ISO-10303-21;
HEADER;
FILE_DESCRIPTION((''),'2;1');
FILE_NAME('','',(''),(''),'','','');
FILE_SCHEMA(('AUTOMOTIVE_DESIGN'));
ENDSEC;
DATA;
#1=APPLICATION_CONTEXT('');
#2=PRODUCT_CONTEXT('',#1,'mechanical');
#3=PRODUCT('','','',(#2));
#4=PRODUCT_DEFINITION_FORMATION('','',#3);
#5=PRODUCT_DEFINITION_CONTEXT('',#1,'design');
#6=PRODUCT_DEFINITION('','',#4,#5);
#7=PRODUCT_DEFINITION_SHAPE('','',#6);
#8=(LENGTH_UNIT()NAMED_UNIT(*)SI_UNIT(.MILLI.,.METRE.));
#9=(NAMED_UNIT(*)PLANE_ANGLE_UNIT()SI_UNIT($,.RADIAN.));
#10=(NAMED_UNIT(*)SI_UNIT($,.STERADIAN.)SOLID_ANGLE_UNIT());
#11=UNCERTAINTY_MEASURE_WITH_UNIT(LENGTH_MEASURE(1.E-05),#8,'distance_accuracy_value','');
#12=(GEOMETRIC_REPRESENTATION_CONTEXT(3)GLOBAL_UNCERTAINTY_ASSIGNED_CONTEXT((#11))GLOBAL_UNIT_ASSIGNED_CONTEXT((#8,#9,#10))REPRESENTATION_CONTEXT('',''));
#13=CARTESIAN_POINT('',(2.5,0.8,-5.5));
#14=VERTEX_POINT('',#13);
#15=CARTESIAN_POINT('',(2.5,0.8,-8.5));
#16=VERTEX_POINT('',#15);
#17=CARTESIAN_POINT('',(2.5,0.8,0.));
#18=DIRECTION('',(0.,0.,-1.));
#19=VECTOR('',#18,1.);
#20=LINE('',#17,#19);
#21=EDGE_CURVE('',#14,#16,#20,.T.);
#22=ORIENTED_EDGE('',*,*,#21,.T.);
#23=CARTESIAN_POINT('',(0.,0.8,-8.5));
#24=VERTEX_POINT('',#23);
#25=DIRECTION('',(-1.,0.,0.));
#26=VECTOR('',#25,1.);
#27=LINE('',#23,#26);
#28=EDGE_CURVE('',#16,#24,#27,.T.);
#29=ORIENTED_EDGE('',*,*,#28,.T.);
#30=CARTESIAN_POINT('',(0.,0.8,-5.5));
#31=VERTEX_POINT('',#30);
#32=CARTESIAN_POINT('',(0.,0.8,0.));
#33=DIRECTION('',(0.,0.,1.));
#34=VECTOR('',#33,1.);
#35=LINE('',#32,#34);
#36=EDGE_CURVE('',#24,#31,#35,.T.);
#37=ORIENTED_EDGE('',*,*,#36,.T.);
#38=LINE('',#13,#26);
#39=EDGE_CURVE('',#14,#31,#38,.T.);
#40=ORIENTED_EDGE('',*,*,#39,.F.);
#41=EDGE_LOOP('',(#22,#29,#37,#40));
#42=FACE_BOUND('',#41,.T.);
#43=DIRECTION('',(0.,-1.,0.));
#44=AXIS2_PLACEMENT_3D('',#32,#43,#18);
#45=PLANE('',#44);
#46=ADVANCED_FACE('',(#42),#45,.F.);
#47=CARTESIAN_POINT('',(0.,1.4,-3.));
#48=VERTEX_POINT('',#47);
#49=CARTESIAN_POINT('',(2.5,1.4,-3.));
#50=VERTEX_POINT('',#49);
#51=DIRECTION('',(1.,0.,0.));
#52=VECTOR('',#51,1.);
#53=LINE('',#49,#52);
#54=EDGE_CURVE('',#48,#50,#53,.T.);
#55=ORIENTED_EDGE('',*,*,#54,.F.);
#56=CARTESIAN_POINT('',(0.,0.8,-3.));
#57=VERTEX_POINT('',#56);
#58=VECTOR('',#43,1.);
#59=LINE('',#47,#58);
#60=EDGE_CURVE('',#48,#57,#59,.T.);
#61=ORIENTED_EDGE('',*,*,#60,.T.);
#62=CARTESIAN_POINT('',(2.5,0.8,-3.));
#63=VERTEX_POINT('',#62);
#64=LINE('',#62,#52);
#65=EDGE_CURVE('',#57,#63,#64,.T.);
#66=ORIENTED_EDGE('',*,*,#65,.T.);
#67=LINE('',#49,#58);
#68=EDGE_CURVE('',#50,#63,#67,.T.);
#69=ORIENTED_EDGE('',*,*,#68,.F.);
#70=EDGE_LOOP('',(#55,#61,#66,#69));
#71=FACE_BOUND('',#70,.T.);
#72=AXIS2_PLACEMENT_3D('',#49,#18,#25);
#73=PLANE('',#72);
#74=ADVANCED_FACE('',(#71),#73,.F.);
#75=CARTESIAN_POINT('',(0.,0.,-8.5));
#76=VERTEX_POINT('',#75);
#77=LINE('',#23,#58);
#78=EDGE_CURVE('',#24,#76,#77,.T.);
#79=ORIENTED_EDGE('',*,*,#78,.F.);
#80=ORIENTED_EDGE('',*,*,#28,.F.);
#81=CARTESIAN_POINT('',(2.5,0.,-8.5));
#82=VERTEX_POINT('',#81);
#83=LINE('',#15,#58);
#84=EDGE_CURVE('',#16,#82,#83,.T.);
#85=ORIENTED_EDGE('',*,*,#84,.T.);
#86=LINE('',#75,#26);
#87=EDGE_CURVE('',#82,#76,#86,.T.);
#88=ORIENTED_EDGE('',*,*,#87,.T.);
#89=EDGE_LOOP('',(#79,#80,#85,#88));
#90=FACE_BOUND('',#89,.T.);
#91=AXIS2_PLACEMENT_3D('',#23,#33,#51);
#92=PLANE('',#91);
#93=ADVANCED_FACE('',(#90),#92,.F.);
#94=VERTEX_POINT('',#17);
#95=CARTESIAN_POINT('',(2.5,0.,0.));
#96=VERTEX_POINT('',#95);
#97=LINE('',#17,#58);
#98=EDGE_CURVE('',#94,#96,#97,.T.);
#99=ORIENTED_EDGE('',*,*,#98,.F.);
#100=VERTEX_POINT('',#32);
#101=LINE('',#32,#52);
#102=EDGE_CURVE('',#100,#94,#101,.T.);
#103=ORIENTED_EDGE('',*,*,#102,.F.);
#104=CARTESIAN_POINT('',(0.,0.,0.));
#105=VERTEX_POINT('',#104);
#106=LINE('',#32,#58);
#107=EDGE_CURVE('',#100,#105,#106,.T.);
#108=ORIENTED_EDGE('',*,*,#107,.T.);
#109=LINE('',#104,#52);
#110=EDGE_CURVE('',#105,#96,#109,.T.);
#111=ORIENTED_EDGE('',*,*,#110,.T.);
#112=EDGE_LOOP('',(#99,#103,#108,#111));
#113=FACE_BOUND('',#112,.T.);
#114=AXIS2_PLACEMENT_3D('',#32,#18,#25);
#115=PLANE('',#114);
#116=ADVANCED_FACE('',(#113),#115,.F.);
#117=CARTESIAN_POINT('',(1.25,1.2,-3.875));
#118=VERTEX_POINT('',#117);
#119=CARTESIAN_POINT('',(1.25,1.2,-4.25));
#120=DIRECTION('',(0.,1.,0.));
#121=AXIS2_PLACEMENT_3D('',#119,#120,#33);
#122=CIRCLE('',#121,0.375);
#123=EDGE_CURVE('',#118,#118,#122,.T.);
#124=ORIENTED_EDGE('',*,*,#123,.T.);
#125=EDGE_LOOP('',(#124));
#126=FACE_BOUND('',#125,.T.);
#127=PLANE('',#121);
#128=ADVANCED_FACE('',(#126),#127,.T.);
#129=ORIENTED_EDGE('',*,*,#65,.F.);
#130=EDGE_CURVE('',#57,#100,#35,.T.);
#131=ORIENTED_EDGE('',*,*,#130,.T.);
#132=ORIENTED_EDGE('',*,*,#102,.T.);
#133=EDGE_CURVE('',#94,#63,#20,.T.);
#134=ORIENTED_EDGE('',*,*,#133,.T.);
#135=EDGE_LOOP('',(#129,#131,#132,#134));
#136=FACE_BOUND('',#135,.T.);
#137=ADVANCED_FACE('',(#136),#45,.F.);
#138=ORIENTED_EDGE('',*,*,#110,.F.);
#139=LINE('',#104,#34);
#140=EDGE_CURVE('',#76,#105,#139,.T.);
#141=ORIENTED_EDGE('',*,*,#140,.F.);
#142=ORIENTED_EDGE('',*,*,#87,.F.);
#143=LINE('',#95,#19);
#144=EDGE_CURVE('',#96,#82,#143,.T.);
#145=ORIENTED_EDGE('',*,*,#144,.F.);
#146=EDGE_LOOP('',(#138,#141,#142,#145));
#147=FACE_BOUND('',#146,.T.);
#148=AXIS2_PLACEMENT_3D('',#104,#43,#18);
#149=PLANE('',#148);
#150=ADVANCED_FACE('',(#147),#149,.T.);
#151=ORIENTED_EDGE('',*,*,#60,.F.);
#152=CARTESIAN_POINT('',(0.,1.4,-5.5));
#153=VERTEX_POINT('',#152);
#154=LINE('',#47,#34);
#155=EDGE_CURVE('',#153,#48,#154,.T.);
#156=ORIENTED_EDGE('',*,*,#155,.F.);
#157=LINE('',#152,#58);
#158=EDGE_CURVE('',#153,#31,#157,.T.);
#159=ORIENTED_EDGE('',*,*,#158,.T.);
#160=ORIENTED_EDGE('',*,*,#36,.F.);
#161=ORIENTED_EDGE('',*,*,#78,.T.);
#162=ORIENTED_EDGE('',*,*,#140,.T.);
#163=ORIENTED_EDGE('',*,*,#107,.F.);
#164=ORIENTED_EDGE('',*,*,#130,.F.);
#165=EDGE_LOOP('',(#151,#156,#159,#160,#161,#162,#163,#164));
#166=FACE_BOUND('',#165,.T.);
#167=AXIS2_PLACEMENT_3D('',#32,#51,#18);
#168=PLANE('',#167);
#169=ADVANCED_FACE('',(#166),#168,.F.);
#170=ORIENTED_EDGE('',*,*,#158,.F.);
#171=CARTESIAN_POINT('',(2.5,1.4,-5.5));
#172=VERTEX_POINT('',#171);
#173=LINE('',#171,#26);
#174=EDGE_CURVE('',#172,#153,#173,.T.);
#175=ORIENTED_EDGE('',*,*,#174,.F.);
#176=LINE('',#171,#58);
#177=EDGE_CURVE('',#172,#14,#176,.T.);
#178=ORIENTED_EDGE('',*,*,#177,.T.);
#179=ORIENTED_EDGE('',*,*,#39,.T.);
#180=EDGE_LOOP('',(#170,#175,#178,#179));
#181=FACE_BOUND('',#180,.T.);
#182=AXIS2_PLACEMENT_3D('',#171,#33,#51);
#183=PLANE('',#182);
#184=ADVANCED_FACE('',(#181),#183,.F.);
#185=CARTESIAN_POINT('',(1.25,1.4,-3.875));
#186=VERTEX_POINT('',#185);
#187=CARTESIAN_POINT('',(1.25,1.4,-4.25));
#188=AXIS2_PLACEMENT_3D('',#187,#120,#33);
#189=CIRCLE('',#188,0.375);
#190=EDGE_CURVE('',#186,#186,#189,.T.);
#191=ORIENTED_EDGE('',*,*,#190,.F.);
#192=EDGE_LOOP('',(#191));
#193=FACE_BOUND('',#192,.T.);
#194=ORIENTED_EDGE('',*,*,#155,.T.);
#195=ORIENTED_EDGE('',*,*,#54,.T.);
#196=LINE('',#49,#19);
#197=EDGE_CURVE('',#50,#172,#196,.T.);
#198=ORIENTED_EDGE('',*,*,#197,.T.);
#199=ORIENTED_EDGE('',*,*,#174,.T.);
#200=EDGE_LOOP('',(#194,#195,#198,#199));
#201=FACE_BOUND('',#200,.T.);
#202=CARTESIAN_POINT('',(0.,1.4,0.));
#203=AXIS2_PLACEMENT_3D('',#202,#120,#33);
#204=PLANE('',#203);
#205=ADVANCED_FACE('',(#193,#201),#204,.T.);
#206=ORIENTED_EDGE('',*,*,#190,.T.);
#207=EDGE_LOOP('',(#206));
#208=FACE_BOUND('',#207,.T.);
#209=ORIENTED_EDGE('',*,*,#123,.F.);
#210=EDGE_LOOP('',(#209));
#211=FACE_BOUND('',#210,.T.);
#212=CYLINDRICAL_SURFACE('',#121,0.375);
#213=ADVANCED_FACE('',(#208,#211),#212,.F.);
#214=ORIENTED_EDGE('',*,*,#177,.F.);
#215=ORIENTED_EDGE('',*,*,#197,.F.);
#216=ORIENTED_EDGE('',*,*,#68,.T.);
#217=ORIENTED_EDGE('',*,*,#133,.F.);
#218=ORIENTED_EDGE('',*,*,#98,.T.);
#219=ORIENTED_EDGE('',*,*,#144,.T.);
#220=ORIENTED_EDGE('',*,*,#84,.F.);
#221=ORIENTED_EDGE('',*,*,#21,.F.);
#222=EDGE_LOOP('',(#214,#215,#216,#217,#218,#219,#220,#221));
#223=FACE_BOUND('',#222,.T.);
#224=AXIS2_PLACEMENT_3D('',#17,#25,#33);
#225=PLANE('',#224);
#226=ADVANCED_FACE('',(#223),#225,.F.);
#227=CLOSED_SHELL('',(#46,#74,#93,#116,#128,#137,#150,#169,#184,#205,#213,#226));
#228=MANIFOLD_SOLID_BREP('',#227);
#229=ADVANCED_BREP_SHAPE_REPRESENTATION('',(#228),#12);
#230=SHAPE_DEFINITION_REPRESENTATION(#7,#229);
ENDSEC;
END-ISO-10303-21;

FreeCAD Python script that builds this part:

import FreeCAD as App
import Part
import Sketcher

V = App.Vector
Q = App.Units.Quantity


def add_polygon(sketch, points):
    """Adds a closed chain of lines whose ends are joined by coincident constraints."""
    first, n = sketch.GeometryCount, len(points)
    for a, b in zip(points, points[1:] + points[:1]):
        sketch.addGeometry(Part.LineSegment(App.Vector(*a, 0), App.Vector(*b, 0)), False)
    for i in range(n):
        sketch.addConstraint(Sketcher.Constraint("Coincident", first + i, 2, first + (i + 1) % n, 1))

doc = App.newDocument("Part")
body = doc.addObject("PartDesign::Body", "Body")

sketch1 = body.newObject("Sketcher::SketchObject", "Sketch")
sketch1.AttachmentSupport = (doc.getObject("XZ_Plane"), [""])
sketch1.MapMode = "FlatFace"
add_polygon(sketch1, [(0, -8.5), (0, 0), (2.5, 0), (2.5, -8.5)])
sketch1.addConstraint([
    Sketcher.Constraint("Vertical", 0),
    Sketcher.Constraint("Horizontal", 1),
    Sketcher.Constraint("Vertical", 2),
    Sketcher.Constraint("Horizontal", 3),
    Sketcher.Constraint("Coincident", 0, 2, -1, 1),
    Sketcher.Constraint("DistanceX", 1, 1, 1, 2, Q("2.5 mm")),
    Sketcher.Constraint("DistanceY", 0, 1, 0, 2, Q("8.5 mm")),
])
pad1 = body.newObject("PartDesign::Pad", "Pad")
pad1.Profile = sketch1
pad1.Length = 0.8
pad1.Reversed = True

sketch2 = body.newObject("Sketcher::SketchObject", "Sketch001")
sketch2.AttachmentSupport = (doc.getObject("XZ_Plane"), [""])
sketch2.MapMode = "FlatFace"
sketch2.AttachmentOffset = App.Placement(V(0, 0, -0.8), App.Rotation())
add_polygon(sketch2, [(0, -5.5), (0, -3), (2.5, -3), (2.5, -5.5)])
sketch2.addConstraint([
    Sketcher.Constraint("Vertical", 0),
    Sketcher.Constraint("Horizontal", 1),
    Sketcher.Constraint("Vertical", 2),
    Sketcher.Constraint("Horizontal", 3),
    Sketcher.Constraint("PointOnObject", 0, 2, -2),
    Sketcher.Constraint("Equal", 3, 0),
    Sketcher.Constraint("DistanceX", 1, 1, 1, 2, Q("2.5 mm")),
    Sketcher.Constraint("DistanceY", 0, 2, -1, 1, Q("3 mm")),
])
pad2 = body.newObject("PartDesign::Pad", "Pad001")
pad2.Profile = sketch2
pad2.Length = 0.6
pad2.Reversed = True

sketch3 = body.newObject("Sketcher::SketchObject", "Sketch002")
sketch3.AttachmentSupport = (doc.getObject("XZ_Plane"), [""])
sketch3.MapMode = "FlatFace"
sketch3.AttachmentOffset = App.Placement(V(0, 0, -1.4), App.Rotation())
sketch3.addGeometry(Part.Circle(V(1.25, -4.25, 0), V(0, 0, 1), 0.38), False)
sketch3.addConstraint([
    Sketcher.Constraint("Diameter", 0, Q("0.75 mm")),
    Sketcher.Constraint("DistanceX", -1, 1, 0, 3, Q("1.25 mm")),
    Sketcher.Constraint("DistanceY", 0, 3, -1, 1, Q("4.25 mm")),
])
pocket1 = body.newObject("PartDesign::Pocket", "Pocket")
pocket1.Profile = sketch3
pocket1.Length = 0.2
pocket1.Reversed = True

doc.recompute()
